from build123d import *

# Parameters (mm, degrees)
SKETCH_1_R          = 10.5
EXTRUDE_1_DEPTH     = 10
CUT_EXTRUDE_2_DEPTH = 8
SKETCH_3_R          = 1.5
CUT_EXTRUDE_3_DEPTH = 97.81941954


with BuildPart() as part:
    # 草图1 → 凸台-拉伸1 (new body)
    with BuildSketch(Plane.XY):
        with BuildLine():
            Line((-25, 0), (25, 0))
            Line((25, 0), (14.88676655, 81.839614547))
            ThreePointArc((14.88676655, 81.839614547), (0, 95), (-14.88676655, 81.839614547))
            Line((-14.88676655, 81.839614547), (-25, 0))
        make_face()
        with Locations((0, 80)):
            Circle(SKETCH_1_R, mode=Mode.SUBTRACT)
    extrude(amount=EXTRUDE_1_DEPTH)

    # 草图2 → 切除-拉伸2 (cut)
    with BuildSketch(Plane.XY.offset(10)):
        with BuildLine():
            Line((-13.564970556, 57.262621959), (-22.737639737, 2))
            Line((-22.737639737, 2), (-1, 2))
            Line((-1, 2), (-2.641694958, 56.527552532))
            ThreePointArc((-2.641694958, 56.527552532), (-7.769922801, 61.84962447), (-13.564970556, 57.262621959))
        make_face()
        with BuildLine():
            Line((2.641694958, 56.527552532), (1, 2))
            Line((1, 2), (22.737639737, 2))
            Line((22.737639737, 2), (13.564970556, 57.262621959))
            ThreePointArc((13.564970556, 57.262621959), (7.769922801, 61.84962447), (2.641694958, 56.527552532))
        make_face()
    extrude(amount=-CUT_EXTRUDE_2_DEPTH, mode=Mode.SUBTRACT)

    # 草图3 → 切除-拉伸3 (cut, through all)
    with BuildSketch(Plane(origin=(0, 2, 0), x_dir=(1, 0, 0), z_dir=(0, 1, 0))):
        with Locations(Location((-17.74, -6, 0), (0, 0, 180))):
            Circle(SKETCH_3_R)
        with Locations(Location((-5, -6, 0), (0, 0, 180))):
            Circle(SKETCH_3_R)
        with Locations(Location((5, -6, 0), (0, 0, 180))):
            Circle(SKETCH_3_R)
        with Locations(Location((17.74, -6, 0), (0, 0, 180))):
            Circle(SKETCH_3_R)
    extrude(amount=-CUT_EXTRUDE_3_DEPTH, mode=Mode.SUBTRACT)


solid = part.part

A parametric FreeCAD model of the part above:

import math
import FreeCAD as App
import Part
import Sketcher
from FreeCAD import Vector
Q = App.Units.Quantity

doc = App.newDocument("Part")
params = doc.addObject("Spreadsheet::Sheet", "Params")
for row, (alias, value) in enumerate([
    ("sketch1_diameter", "21 mm"),
    ("sketch1_radius", "15 mm"),
    ("sketch1_width", "50 mm"),
    ("pad1_length", "10 mm"),
    ("sketch2_radius", "5.5 mm"),
    ("pocket1_length", "8 mm"),
    ("sketch3_diameter", "3 mm"),
], start=1):
    params.set(f"A{row}", alias)
    params.set(f"B{row}", "=" + value)
    params.setAlias(f"B{row}", alias)

body = doc.addObject("PartDesign::Body", "Body")

sketch1 = doc.addObject("Sketcher::SketchObject", "Sketch")
body.addObject(sketch1)
sketch1.AttachmentSupport = (doc.XY_Plane, [""])
sketch1.MapMode = "FlatFace"
sketch1.addGeometry([
    Part.LineSegment(Vector(-25, 0, 0), Vector(25, 0, 0)),
    Part.LineSegment(Vector(25, 0, 0), Vector(15, 82, 0)),
    Part.ArcOfCircle(Part.Circle(Vector(0, 80, 0), Vector(0, 0, 1), 15), math.radians(7), math.radians(173)),
    Part.LineSegment(Vector(-15, 82, 0), Vector(-25, 0, 0)),
    Part.Circle(Vector(0, 80, 0), Vector(0, 0, 1), 10),
], False)
sketch1.addConstraint([
    Sketcher.Constraint("Coincident", 0, 2, 1, 1),
    Sketcher.Constraint("Tangent", 1, 2, 2, 1),
    Sketcher.Constraint("Tangent", 2, 2, 3, 1),
    Sketcher.Constraint("Coincident", 3, 2, 0, 1),
    Sketcher.Constraint("Horizontal", 0),
    Sketcher.Constraint("Coincident", 4, 3, 2, 3),
    Sketcher.Constraint("Symmetric", 0, 2, 3, 2, -1, 1),
    Sketcher.Constraint("PointOnObject", 2, 3, -2),
    Sketcher.Constraint("Diameter", 4, Q("21 mm")),
    Sketcher.Constraint("Radius", 2, Q("15 mm")),
    Sketcher.Constraint("DistanceX", 0, 1, 0, 2, Q("50 mm")),
    Sketcher.Constraint("DistanceY", -1, 1, 2, 3, Q("80 mm")),
])
sketch1.setExpression("Constraints[8]", "Params.sketch1_diameter")
sketch1.setExpression("Constraints[9]", "Params.sketch1_radius")
sketch1.setExpression("Constraints[10]", "Params.sketch1_width")
pad1 = doc.addObject("PartDesign::Pad", "Pad")
body.addObject(pad1)
pad1.Profile = sketch1
pad1.setExpression("Length", "Params.pad1_length")

sketch2 = doc.addObject("Sketcher::SketchObject", "Sketch001")
body.addObject(sketch2)
sketch2.AttachmentSupport = (doc.XY_Plane, [""])
sketch2.MapMode = "FlatFace"
sketch2.AttachmentOffset = App.Placement(Vector(0, 0, 10), App.Rotation())
sketch2.addGeometry([
    Part.LineSegment(Vector(-14, 57, 0), Vector(-23, 2, 0)),
    Part.LineSegment(Vector(-23, 2, 0), Vector(-1, 2, 0)),
    Part.LineSegment(Vector(-1, 2, 0), Vector(-3, 57, 0)),
    Part.ArcOfCircle(Part.Circle(Vector(-8, 56, 0), Vector(0, 0, 1), 6), math.radians(2), math.radians(171)),
    Part.LineSegment(Vector(3, 57, 0), Vector(1, 2, 0)),
    Part.LineSegment(Vector(1, 2, 0), Vector(23, 2, 0)),
    Part.LineSegment(Vector(23, 2, 0), Vector(14, 57, 0)),
    Part.ArcOfCircle(Part.Circle(Vector(8, 56, 0), Vector(0, 0, 1), 6), math.radians(9), math.radians(178)),
], False)
sketch2.addConstraint([
    Sketcher.Constraint("Coincident", 0, 2, 1, 1),
    Sketcher.Constraint("Coincident", 1, 2, 2, 1),
    Sketcher.Constraint("Tangent", 2, 2, 3, 1),
    Sketcher.Constraint("Tangent", 3, 2, 0, 1),
    Sketcher.Constraint("Coincident", 4, 2, 5, 1),
    Sketcher.Constraint("Coincident", 5, 2, 6, 1),
    Sketcher.Constraint("Tangent", 6, 2, 7, 1),
    Sketcher.Constraint("Tangent", 7, 2, 4, 1),
    Sketcher.Constraint("Horizontal", 1),
    Sketcher.Constraint("Horizontal", 5),
    Sketcher.Constraint("Equal", 3, 7),
    Sketcher.Constraint("Symmetric", 3, 3, 7, 3, -2),
    Sketcher.Constraint("Symmetric", 1, 2, 4, 2, -2),
    Sketcher.Constraint("Horizontal", 3, 2, 6, 2),
    Sketcher.Constraint("Radius", 3, Q("5.5 mm")),
    Sketcher.Constraint("DistanceY", -1, 1, 0, 2, Q("2 mm")),
    Sketcher.Constraint("DistanceX", 1, 2, -1, 1, Q("1 mm")),
    Sketcher.Constraint("DistanceX", 1, 1, 1, 2, Q("21.73764 mm")),
    Sketcher.Constraint("DistanceX", 2, 2, 7, 3, Q("10.780899 mm")),
    Sketcher.Constraint("Distance", 2, Q("54.552261 mm")),
])
sketch2.setExpression("Constraints[14]", "Params.sketch2_radius")
pocket1 = doc.addObject("PartDesign::Pocket", "Pocket")
body.addObject(pocket1)
pocket1.Profile = sketch2
pocket1.setExpression("Length", "Params.pocket1_length")

sketch3 = doc.addObject("Sketcher::SketchObject", "Sketch002")
body.addObject(sketch3)
sketch3.AttachmentSupport = (doc.XZ_Plane, [""])
sketch3.MapMode = "FlatFace"
sketch3.AttachmentOffset = App.Placement(Vector(0, 0, -2), App.Rotation())
sketch3.addGeometry([
    Part.Circle(Vector(-17.7, 6, 0), Vector(0, 0, 1), 1.5),
    Part.Circle(Vector(-5, 6, 0), Vector(0, 0, 1), 1.5),
    Part.Circle(Vector(5, 6, 0), Vector(0, 0, 1), 1.5),
    Part.Circle(Vector(17.7, 6, 0), Vector(0, 0, 1), 1.5),
], False)
sketch3.addConstraint([
    Sketcher.Constraint("Equal", 0, 1),
    Sketcher.Constraint("Equal", 1, 2),
    Sketcher.Constraint("Equal", 2, 3),
    Sketcher.Constraint("Symmetric", 1, 3, 2, 3, -2),
    Sketcher.Constraint("Symmetric", 0, 3, 3, 3, -2),
    Sketcher.Constraint("Horizontal", 0, 3, 1, 3),
    Sketcher.Constraint("Diameter", 0, Q("3 mm")),
    Sketcher.Constraint("DistanceY", -1, 1, 0, 3, Q("6 mm")),
    Sketcher.Constraint("DistanceX", 1, 3, -1, 1, Q("5 mm")),
    Sketcher.Constraint("DistanceX", 0, 3, -1, 1, Q("17.74 mm")),
])
sketch3.setExpression("Constraints[6]", "Params.sketch3_diameter")
pocket2 = doc.addObject("PartDesign::Pocket", "Pocket001")
body.addObject(pocket2)
pocket2.Profile = sketch3
pocket2.Type = "ThroughAll"
pocket2.Reversed = True

doc.recompute()
